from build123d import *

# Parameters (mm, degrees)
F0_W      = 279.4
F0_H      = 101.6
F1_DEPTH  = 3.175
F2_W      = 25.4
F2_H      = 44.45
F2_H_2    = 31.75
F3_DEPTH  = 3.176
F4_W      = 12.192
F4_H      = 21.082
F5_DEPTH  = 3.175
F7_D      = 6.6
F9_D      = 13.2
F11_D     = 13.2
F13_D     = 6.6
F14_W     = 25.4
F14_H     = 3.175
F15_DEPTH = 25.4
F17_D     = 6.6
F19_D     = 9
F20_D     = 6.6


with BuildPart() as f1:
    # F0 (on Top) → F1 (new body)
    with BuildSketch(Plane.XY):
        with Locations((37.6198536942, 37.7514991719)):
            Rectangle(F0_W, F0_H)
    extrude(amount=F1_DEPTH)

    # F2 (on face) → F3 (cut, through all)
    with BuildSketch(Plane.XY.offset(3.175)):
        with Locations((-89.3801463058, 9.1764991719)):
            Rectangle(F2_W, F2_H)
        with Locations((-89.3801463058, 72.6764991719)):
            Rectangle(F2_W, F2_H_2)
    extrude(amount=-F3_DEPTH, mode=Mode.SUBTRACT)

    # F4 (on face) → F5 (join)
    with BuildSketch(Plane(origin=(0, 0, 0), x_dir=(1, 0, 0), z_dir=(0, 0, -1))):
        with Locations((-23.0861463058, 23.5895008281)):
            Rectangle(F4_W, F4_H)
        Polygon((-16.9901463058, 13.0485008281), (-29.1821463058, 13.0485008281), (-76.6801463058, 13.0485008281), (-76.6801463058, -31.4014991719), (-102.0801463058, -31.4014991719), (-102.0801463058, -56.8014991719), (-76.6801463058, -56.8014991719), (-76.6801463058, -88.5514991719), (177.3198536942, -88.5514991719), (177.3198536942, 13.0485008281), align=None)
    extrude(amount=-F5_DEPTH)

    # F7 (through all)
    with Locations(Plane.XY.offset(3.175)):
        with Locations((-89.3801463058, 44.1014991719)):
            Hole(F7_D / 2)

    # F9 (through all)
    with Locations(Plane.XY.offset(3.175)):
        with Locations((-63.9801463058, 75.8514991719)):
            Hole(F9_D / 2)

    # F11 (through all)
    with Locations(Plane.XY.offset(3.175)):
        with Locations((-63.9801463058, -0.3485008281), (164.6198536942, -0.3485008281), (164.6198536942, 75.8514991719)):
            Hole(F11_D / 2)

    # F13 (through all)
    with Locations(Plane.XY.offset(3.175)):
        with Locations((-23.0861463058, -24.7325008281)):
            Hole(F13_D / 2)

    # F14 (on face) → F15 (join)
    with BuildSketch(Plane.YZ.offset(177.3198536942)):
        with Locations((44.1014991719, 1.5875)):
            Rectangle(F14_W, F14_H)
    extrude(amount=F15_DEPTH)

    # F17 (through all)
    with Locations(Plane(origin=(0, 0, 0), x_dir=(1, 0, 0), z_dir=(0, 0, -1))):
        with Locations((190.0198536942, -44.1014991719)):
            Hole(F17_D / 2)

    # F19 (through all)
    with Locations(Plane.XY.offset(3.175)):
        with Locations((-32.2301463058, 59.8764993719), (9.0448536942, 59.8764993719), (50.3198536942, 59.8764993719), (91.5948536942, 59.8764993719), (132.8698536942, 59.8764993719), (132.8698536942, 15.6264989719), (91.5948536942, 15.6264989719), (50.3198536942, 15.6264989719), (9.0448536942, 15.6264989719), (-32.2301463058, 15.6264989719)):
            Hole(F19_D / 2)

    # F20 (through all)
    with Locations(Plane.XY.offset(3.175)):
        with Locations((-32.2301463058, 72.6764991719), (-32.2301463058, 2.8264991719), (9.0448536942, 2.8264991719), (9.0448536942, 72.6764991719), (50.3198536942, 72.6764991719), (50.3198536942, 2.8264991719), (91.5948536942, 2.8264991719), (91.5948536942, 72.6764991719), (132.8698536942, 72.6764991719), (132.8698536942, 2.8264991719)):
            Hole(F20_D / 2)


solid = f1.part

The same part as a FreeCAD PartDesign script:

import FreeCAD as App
import Part
import Sketcher
Q = App.Units.Quantity


def add_polygon(sketch, points):
    """Adds a closed chain of lines whose ends are joined by coincident constraints."""
    first, n = sketch.GeometryCount, len(points)
    for a, b in zip(points, points[1:] + points[:1]):
        sketch.addGeometry(Part.LineSegment(App.Vector(*a, 0), App.Vector(*b, 0)), False)
    for i in range(n):
        sketch.addConstraint(Sketcher.Constraint("Coincident", first + i, 2, first + (i + 1) % n, 1))

doc = App.newDocument("Part")
body = doc.addObject("PartDesign::Body", "Body")

# Sketch on XY plane
sketch1 = body.newObject("Sketcher::SketchObject", "Sketch")
sketch1.AttachmentSupport = (doc.getObject("XY_Plane"), [""])
sketch1.MapMode = "FlatFace"
add_polygon(sketch1, [(-102, 89), (-102, -13), (177, -13), (177, 89)])  # lines 0-3
sketch1.addConstraint([
    Sketcher.Constraint("Vertical", 0),
    Sketcher.Constraint("Horizontal", 1),
    Sketcher.Constraint("Vertical", 2),
    Sketcher.Constraint("Horizontal", 3),
    Sketcher.Constraint("DistanceX", 1, 1, 1, 2, Q("11 in")),
    Sketcher.Constraint("DistanceY", 0, 2, 0, 1, Q("4 in")),
    Sketcher.Constraint("DistanceY", 0, 2, -1, 1, Q("13.048501 mm")),
    Sketcher.Constraint("DistanceX", 0, 2, -1, 1, Q("102.080146 mm")),
])
pad1 = body.newObject("PartDesign::Pad", "Pad")
pad1.Profile = sketch1
pad1.Length = Q("0.125 in")

# Sketch on XY plane
sketch2 = body.newObject("Sketcher::SketchObject", "Sketch001")
sketch2.AttachmentSupport = (doc.getObject("XY_Plane"), [""])
sketch2.MapMode = "FlatFace"
sketch2.AttachmentOffset = App.Placement(App.Vector(0, 0, 0.125 * 25.4), App.Rotation())
add_polygon(sketch2, [(-102, 31), (-102, -13), (-77, -13), (-77, 31)])  # lines 0-3
add_polygon(sketch2, [(-102, 89), (-102, 57), (-77, 57), (-77, 89)])  # lines 4-7
sketch2.addConstraint([
    Sketcher.Constraint("Vertical", 0),
    Sketcher.Constraint("Horizontal", 1),
    Sketcher.Constraint("Vertical", 2),
    Sketcher.Constraint("Horizontal", 3),
    Sketcher.Constraint("Vertical", 4),
    Sketcher.Constraint("Horizontal", 5),
    Sketcher.Constraint("Vertical", 6),
    Sketcher.Constraint("Horizontal", 7),
    Sketcher.Constraint("Vertical", 3, 2, 4, 2),
    Sketcher.Constraint("Vertical", 2, 2, 5, 2),
    Sketcher.Constraint("DistanceX", 1, 1, 1, 2, Q("1 in")),
    Sketcher.Constraint("DistanceY", 3, 2, 4, 2, Q("1 in")),
    Sketcher.Constraint("DistanceY", 1, 2, 6, 2, Q("4 in")),
    Sketcher.Constraint("DistanceY", 0, 2, 0, 1, Q("1.75 in")),
    Sketcher.Constraint("DistanceY", 0, 2, -1, 1, Q("13.048501 mm")),
    Sketcher.Constraint("DistanceX", 0, 2, -1, 1, Q("102.080146 mm")),
])
pocket1 = body.newObject("PartDesign::Pocket", "Pocket")
pocket1.Profile = sketch2
pocket1.Type = "ThroughAll"

# Sketch on XY plane
sketch3 = body.newObject("Sketcher::SketchObject", "Sketch002")
sketch3.AttachmentSupport = (doc.getObject("XY_Plane"), [""])
sketch3.MapMode = "FlatFace"
add_polygon(sketch3, [(-29, -34), (-29, -13), (-77, -13), (-77, 31), (-102, 31), (-102, 57), (-77, 57), (-77, 89), (177, 89), (177, -13), (-17, -13), (-17, -34)])  # lines 0-11
sketch3.addConstraint([
    Sketcher.Constraint("Vertical", 0),
    Sketcher.Constraint("Horizontal", 1),
    Sketcher.Constraint("Vertical", 2),
    Sketcher.Constraint("Horizontal", 3),
    Sketcher.Constraint("Vertical", 4),
    Sketcher.Constraint("Horizontal", 5),
    Sketcher.Constraint("Vertical", 6),
    Sketcher.Constraint("Horizontal", 7),
    Sketcher.Constraint("Vertical", 8),
    Sketcher.Constraint("Horizontal", 9),
    Sketcher.Constraint("Vertical", 10),
    Sketcher.Constraint("Horizontal", 11),
    Sketcher.Constraint("Horizontal", 1, 2, 8, 2),
    Sketcher.Constraint("Vertical", 2, 2, 5, 2),
    Sketcher.Constraint("Equal", 5, 4),
    Sketcher.Constraint("DistanceX", 3, 2, 3, 1, Q("1 in")),
    Sketcher.Constraint("DistanceX", 7, 1, 7, 2, Q("10 in")),
    Sketcher.Constraint("DistanceY", 8, 2, 8, 1, Q("4 in")),
    Sketcher.Constraint("DistanceX", 1, 2, 1, 1, Q("1.87 in")),
    Sketcher.Constraint("DistanceX", 9, 2, 9, 1, Q("7.65 in")),
    Sketcher.Constraint("DistanceY", 0, 1, 0, 2, Q("0.83 in")),
    Sketcher.Constraint("DistanceY", 2, 1, 2, 2, Q("1.75 in")),
    Sketcher.Constraint("DistanceY", 0, 2, -1, 1, Q("13.048501 mm")),
    Sketcher.Constraint("DistanceX", 0, 2, -1, 1, Q("29.182146 mm")),
])
pad2 = body.newObject("PartDesign::Pad", "Pad001")
pad2.Profile = sketch3
pad2.Length = Q("0.125 in")

# Sketch on XY plane
sketch4 = body.newObject("Sketcher::SketchObject", "Sketch003")
sketch4.AttachmentSupport = (doc.getObject("XY_Plane"), [""])
sketch4.MapMode = "FlatFace"
sketch4.AttachmentOffset = App.Placement(App.Vector(0, 0, 0.125 * 25.4), App.Rotation())
sketch4.addGeometry(Part.Circle(App.Vector(-89.4, 44.1, 0), App.Vector(0, 0, 1), 3.3), False)
sketch4.addConstraint([
    Sketcher.Constraint("Diameter", 0, Q("6.6 mm")),
    Sketcher.Constraint("DistanceY", -1, 1, 0, 3, Q("44.101499 mm")),
    Sketcher.Constraint("DistanceX", 0, 3, -1, 1, Q("89.380146 mm")),
])
doc.recompute()
hole = body.newObject("PartDesign::Hole", "Hole")
hole.Profile = sketch4
hole.ThreadType = "None"
hole.Diameter = 6.6
hole.DepthType = "ThroughAll"

# Sketch on XY plane
sketch5 = body.newObject("Sketcher::SketchObject", "Sketch004")
sketch5.AttachmentSupport = (doc.getObject("XY_Plane"), [""])
sketch5.MapMode = "FlatFace"
sketch5.AttachmentOffset = App.Placement(App.Vector(0, 0, 0.125 * 25.4), App.Rotation())
sketch5.addGeometry(Part.Circle(App.Vector(-64, 76, 0), App.Vector(0, 0, 1), 7), False)
sketch5.addConstraint([
    Sketcher.Constraint("Diameter", 0, Q("13.2 mm")),
    Sketcher.Constraint("DistanceY", -1, 1, 0, 3, Q("75.851499 mm")),
    Sketcher.Constraint("DistanceX", 0, 3, -1, 1, Q("63.980146 mm")),
])
doc.recompute()
hole2 = body.newObject("PartDesign::Hole", "Hole001")
hole2.Profile = sketch5
hole2.ThreadType = "None"
hole2.Diameter = 13.2
hole2.DepthType = "ThroughAll"

# Sketch on XY plane
sketch6 = body.newObject("Sketcher::SketchObject", "Sketch005")
sketch6.AttachmentSupport = (doc.getObject("XY_Plane"), [""])
sketch6.MapMode = "FlatFace"
sketch6.AttachmentOffset = App.Placement(App.Vector(0, 0, 0.125 * 25.4), App.Rotation())
sketch6.addGeometry([
    Part.Circle(App.Vector(-64, 0, 0), App.Vector(0, 0, 1), 7),
    Part.Circle(App.Vector(165, 0, 0), App.Vector(0, 0, 1), 7),
    Part.Circle(App.Vector(165, 76, 0), App.Vector(0, 0, 1), 7),
], False)
sketch6.addConstraint([
    Sketcher.Constraint("Equal", 0, 1),
    Sketcher.Constraint("Equal", 1, 2),
    Sketcher.Constraint("Horizontal", 0, 3, 1, 3),
    Sketcher.Constraint("Vertical", 1, 3, 2, 3),
    Sketcher.Constraint("DistanceX", 0, 3, 1, 3, Q("9 in")),
    Sketcher.Constraint("DistanceY", 1, 3, 2, 3, Q("3 in")),
    Sketcher.Constraint("Diameter", 0, Q("13.2 mm")),
    Sketcher.Constraint("DistanceY", 0, 3, -1, 1, Q("0.348501 mm")),
    Sketcher.Constraint("DistanceX", 0, 3, -1, 1, Q("63.980146 mm")),
])
doc.recompute()
hole3 = body.newObject("PartDesign::Hole", "Hole002")
hole3.Profile = sketch6
hole3.ThreadType = "None"
hole3.Diameter = 13.2
hole3.DepthType = "ThroughAll"

# Sketch on XY plane
sketch7 = body.newObject("Sketcher::SketchObject", "Sketch006")
sketch7.AttachmentSupport = (doc.getObject("XY_Plane"), [""])
sketch7.MapMode = "FlatFace"
sketch7.AttachmentOffset = App.Placement(App.Vector(0, 0, 0.125 * 25.4), App.Rotation())
sketch7.addGeometry(Part.Circle(App.Vector(-23.1, -24.7, 0), App.Vector(0, 0, 1), 3.3), False)
sketch7.addConstraint([
    Sketcher.Constraint("Diameter", 0, Q("6.6 mm")),
    Sketcher.Constraint("DistanceY", 0, 3, -1, 1, Q("24.732501 mm")),
    Sketcher.Constraint("DistanceX", 0, 3, -1, 1, Q("23.086146 mm")),
])
doc.recompute()
hole4 = body.newObject("PartDesign::Hole", "Hole003")
hole4.Profile = sketch7
hole4.ThreadType = "None"
hole4.Diameter = 6.6
hole4.DepthType = "ThroughAll"

# Sketch on YZ plane
sketch8 = body.newObject("Sketcher::SketchObject", "Sketch007")
sketch8.AttachmentSupport = (doc.getObject("YZ_Plane"), [""])
sketch8.MapMode = "FlatFace"
sketch8.AttachmentOffset = App.Placement(App.Vector(0, 0, 177.319854), App.Rotation())
add_polygon(sketch8, [(31.4, 3.2), (31.4, 0), (56.8, 0), (56.8, 3.2)])  # lines 0-3
sketch8.addConstraint([
    Sketcher.Constraint("Vertical", 0),
    Sketcher.Constraint("Horizontal", 1),
    Sketcher.Constraint("Vertical", 2),
    Sketcher.Constraint("Horizontal", 3),
    Sketcher.Constraint("PointOnObject", 0, 2, -1),
    Sketcher.Constraint("DistanceX", 1, 1, 1, 2, Q("1 in")),
    Sketcher.Constraint("DistanceY", 0, 2, 0, 1, Q("0.125 in")),
    Sketcher.Constraint("DistanceX", -1, 1, 0, 2, Q("31.401499 mm")),
])
pad3 = body.newObject("PartDesign::Pad", "Pad002")
pad3.Profile = sketch8
pad3.Length = Q("1 in")

# Sketch on XY plane
sketch9 = body.newObject("Sketcher::SketchObject", "Sketch008")
sketch9.AttachmentSupport = (doc.getObject("XY_Plane"), [""])
sketch9.MapMode = "FlatFace"
sketch9.addGeometry(Part.Circle(App.Vector(190, 44.1, 0), App.Vector(0, 0, 1), 3.3), False)
sketch9.addConstraint([
    Sketcher.Constraint("Diameter", 0, Q("6.6 mm")),
    Sketcher.Constraint("DistanceY", -1, 1, 0, 3, Q("44.101499 mm")),
    Sketcher.Constraint("DistanceX", -1, 1, 0, 3, Q("190.019854 mm")),
])
doc.recompute()
hole5 = body.newObject("PartDesign::Hole", "Hole004")
hole5.Profile = sketch9
hole5.ThreadType = "None"
hole5.Diameter = 6.6
hole5.DepthType = "ThroughAll"
hole5.Reversed = True

# Sketch on XY plane
sketch10 = body.newObject("Sketcher::SketchObject", "Sketch009")
sketch10.AttachmentSupport = (doc.getObject("XY_Plane"), [""])
sketch10.MapMode = "FlatFace"
sketch10.AttachmentOffset = App.Placement(App.Vector(0, 0, 0.125 * 25.4), App.Rotation())
sketch10.addGeometry([
    Part.Circle(App.Vector(-32.2, 59.9, 0), App.Vector(0, 0, 1), 4.5),  # 0
    Part.Circle(App.Vector(9, 59.9, 0), App.Vector(0, 0, 1), 4.5),  # 1
    Part.Circle(App.Vector(50.3, 59.9, 0), App.Vector(0, 0, 1), 4.5),  # 2
    Part.Circle(App.Vector(91.6, 59.9, 0), App.Vector(0, 0, 1), 4.5),  # 3
    Part.Circle(App.Vector(132.9, 59.9, 0), App.Vector(0, 0, 1), 4.5),  # 4
    Part.Circle(App.Vector(132.9, 15.6, 0), App.Vector(0, 0, 1), 4.5),  # 5
    Part.Circle(App.Vector(91.6, 15.6, 0), App.Vector(0, 0, 1), 4.5),  # 6
    Part.Circle(App.Vector(50.3, 15.6, 0), App.Vector(0, 0, 1), 4.5),  # 7
    Part.Circle(App.Vector(9, 15.6, 0), App.Vector(0, 0, 1), 4.5),  # 8
    Part.Circle(App.Vector(-32.2, 15.6, 0), App.Vector(0, 0, 1), 4.5),  # 9
], False)
sketch10.addConstraint([
    Sketcher.Constraint("Equal", 0, 1),
    Sketcher.Constraint("Equal", 1, 2),
    Sketcher.Constraint("Equal", 2, 3),
    Sketcher.Constraint("Equal", 3, 4),
    Sketcher.Constraint("Equal", 4, 5),
    Sketcher.Constraint("Equal", 5, 6),
    Sketcher.Constraint("Equal", 6, 7),
    Sketcher.Constraint("Equal", 7, 8),
    Sketcher.Constraint("Equal", 8, 9),
    Sketcher.Constraint("Horizontal", 0, 3, 1, 3),
    Sketcher.Constraint("Horizontal", 1, 3, 2, 3),
    Sketcher.Constraint("Horizontal", 2, 3, 3, 3),
    Sketcher.Constraint("Horizontal", 3, 3, 4, 3),
    Sketcher.Constraint("Horizontal", 5, 3, 6, 3),
    Sketcher.Constraint("Horizontal", 6, 3, 7, 3),
    Sketcher.Constraint("Horizontal", 7, 3, 8, 3),
    Sketcher.Constraint("Horizontal", 8, 3, 9, 3),
    Sketcher.Constraint("Vertical", 4, 3, 5, 3),
    Sketcher.Constraint("Vertical", 3, 3, 6, 3),
    Sketcher.Constraint("Vertical", 2, 3, 7, 3),
    Sketcher.Constraint("Vertical", 1, 3, 8, 3),
    Sketcher.Constraint("Vertical", 0, 3, 9, 3),
    Sketcher.Constraint("DistanceX", 0, 3, 4, 3, Q("6.5 in")),
    Sketcher.Constraint("Diameter", 0, Q("9 mm")),
    Sketcher.Constraint("DistanceX", 0, 3, 2, 3, Q("3.25 in")),
    Sketcher.Constraint("DistanceX", 1, 3, 3, 3, Q("3.25 in")),
    Sketcher.Constraint("DistanceX", 0, 3, 1, 3, Q("1.625 in")),
    Sketcher.Constraint("DistanceY", -1, 1, 0, 3, Q("59.876499 mm")),
    Sketcher.Constraint("DistanceY", -1, 1, 5, 3, Q("15.626499 mm")),
    Sketcher.Constraint("DistanceX", 0, 3, -1, 1, Q("32.230146 mm")),
])
doc.recompute()
hole6 = body.newObject("PartDesign::Hole", "Hole005")
hole6.Profile = sketch10
hole6.ThreadType = "None"
hole6.Diameter = 9
hole6.DepthType = "ThroughAll"

# Sketch on XY plane
sketch11 = body.newObject("Sketcher::SketchObject", "Sketch010")
sketch11.AttachmentSupport = (doc.getObject("XY_Plane"), [""])
sketch11.MapMode = "FlatFace"
sketch11.AttachmentOffset = App.Placement(App.Vector(0, 0, 0.125 * 25.4), App.Rotation())
sketch11.addGeometry([
    Part.Circle(App.Vector(-32.2, 72.7, 0), App.Vector(0, 0, 1), 3.3),  # 0
    Part.Circle(App.Vector(-32.2, 2.8, 0), App.Vector(0, 0, 1), 3.3),  # 1
    Part.Circle(App.Vector(9, 2.8, 0), App.Vector(0, 0, 1), 3.3),  # 2
    Part.Circle(App.Vector(9, 72.7, 0), App.Vector(0, 0, 1), 3.3),  # 3
    Part.Circle(App.Vector(50.3, 72.7, 0), App.Vector(0, 0, 1), 3.3),  # 4
    Part.Circle(App.Vector(50.3, 2.8, 0), App.Vector(0, 0, 1), 3.3),  # 5
    Part.Circle(App.Vector(91.6, 2.8, 0), App.Vector(0, 0, 1), 3.3),  # 6
    Part.Circle(App.Vector(91.6, 72.7, 0), App.Vector(0, 0, 1), 3.3),  # 7
    Part.Circle(App.Vector(132.9, 72.7, 0), App.Vector(0, 0, 1), 3.3),  # 8
    Part.Circle(App.Vector(132.9, 2.8, 0), App.Vector(0, 0, 1), 3.3),  # 9
], False)
sketch11.addConstraint([
    Sketcher.Constraint("Equal", 0, 1),
    Sketcher.Constraint("Equal", 1, 2),
    Sketcher.Constraint("Equal", 2, 3),
    Sketcher.Constraint("Equal", 3, 4),
    Sketcher.Constraint("Equal", 4, 5),
    Sketcher.Constraint("Equal", 5, 6),
    Sketcher.Constraint("Equal", 6, 7),
    Sketcher.Constraint("Equal", 7, 8),
    Sketcher.Constraint("Equal", 8, 9),
    Sketcher.Constraint("Horizontal", 1, 3, 2, 3),
    Sketcher.Constraint("Horizontal", 0, 3, 3, 3),
    Sketcher.Constraint("Horizontal", 3, 3, 4, 3),
    Sketcher.Constraint("Horizontal", 2, 3, 5, 3),
    Sketcher.Constraint("Horizontal", 5, 3, 6, 3),
    Sketcher.Constraint("Horizontal", 4, 3, 7, 3),
    Sketcher.Constraint("Horizontal", 7, 3, 8, 3),
    Sketcher.Constraint("Horizontal", 6, 3, 9, 3),
    Sketcher.Constraint("Vertical", 0, 3, 1, 3),
    Sketcher.Constraint("Vertical", 2, 3, 3, 3),
    Sketcher.Constraint("Vertical", 4, 3, 5, 3),
    Sketcher.Constraint("Vertical", 6, 3, 7, 3),
    Sketcher.Constraint("Vertical", 8, 3, 9, 3),
    Sketcher.Constraint("Diameter", 0, Q("6.6 mm")),
    Sketcher.Constraint("DistanceY", 1, 3, 0, 3, Q("2.75 in")),
    Sketcher.Constraint("DistanceX", 0, 3, 4, 3, Q("3.25 in")),
    Sketcher.Constraint("DistanceX", 2, 3, 6, 3, Q("3.25 in")),
    Sketcher.Constraint("DistanceX", 4, 3, 8, 3, Q("3.25 in")),
    Sketcher.Constraint("DistanceX", 1, 3, 2, 3, Q("1.625 in")),
    Sketcher.Constraint("DistanceY", -1, 1, 0, 3, Q("72.676499 mm")),
    Sketcher.Constraint("DistanceX", 0, 3, -1, 1, Q("32.230146 mm")),
])
doc.recompute()
hole7 = body.newObject("PartDesign::Hole", "Hole006")
hole7.Profile = sketch11
hole7.ThreadType = "None"
hole7.Diameter = 6.6
hole7.DepthType = "ThroughAll"

doc.recompute()
